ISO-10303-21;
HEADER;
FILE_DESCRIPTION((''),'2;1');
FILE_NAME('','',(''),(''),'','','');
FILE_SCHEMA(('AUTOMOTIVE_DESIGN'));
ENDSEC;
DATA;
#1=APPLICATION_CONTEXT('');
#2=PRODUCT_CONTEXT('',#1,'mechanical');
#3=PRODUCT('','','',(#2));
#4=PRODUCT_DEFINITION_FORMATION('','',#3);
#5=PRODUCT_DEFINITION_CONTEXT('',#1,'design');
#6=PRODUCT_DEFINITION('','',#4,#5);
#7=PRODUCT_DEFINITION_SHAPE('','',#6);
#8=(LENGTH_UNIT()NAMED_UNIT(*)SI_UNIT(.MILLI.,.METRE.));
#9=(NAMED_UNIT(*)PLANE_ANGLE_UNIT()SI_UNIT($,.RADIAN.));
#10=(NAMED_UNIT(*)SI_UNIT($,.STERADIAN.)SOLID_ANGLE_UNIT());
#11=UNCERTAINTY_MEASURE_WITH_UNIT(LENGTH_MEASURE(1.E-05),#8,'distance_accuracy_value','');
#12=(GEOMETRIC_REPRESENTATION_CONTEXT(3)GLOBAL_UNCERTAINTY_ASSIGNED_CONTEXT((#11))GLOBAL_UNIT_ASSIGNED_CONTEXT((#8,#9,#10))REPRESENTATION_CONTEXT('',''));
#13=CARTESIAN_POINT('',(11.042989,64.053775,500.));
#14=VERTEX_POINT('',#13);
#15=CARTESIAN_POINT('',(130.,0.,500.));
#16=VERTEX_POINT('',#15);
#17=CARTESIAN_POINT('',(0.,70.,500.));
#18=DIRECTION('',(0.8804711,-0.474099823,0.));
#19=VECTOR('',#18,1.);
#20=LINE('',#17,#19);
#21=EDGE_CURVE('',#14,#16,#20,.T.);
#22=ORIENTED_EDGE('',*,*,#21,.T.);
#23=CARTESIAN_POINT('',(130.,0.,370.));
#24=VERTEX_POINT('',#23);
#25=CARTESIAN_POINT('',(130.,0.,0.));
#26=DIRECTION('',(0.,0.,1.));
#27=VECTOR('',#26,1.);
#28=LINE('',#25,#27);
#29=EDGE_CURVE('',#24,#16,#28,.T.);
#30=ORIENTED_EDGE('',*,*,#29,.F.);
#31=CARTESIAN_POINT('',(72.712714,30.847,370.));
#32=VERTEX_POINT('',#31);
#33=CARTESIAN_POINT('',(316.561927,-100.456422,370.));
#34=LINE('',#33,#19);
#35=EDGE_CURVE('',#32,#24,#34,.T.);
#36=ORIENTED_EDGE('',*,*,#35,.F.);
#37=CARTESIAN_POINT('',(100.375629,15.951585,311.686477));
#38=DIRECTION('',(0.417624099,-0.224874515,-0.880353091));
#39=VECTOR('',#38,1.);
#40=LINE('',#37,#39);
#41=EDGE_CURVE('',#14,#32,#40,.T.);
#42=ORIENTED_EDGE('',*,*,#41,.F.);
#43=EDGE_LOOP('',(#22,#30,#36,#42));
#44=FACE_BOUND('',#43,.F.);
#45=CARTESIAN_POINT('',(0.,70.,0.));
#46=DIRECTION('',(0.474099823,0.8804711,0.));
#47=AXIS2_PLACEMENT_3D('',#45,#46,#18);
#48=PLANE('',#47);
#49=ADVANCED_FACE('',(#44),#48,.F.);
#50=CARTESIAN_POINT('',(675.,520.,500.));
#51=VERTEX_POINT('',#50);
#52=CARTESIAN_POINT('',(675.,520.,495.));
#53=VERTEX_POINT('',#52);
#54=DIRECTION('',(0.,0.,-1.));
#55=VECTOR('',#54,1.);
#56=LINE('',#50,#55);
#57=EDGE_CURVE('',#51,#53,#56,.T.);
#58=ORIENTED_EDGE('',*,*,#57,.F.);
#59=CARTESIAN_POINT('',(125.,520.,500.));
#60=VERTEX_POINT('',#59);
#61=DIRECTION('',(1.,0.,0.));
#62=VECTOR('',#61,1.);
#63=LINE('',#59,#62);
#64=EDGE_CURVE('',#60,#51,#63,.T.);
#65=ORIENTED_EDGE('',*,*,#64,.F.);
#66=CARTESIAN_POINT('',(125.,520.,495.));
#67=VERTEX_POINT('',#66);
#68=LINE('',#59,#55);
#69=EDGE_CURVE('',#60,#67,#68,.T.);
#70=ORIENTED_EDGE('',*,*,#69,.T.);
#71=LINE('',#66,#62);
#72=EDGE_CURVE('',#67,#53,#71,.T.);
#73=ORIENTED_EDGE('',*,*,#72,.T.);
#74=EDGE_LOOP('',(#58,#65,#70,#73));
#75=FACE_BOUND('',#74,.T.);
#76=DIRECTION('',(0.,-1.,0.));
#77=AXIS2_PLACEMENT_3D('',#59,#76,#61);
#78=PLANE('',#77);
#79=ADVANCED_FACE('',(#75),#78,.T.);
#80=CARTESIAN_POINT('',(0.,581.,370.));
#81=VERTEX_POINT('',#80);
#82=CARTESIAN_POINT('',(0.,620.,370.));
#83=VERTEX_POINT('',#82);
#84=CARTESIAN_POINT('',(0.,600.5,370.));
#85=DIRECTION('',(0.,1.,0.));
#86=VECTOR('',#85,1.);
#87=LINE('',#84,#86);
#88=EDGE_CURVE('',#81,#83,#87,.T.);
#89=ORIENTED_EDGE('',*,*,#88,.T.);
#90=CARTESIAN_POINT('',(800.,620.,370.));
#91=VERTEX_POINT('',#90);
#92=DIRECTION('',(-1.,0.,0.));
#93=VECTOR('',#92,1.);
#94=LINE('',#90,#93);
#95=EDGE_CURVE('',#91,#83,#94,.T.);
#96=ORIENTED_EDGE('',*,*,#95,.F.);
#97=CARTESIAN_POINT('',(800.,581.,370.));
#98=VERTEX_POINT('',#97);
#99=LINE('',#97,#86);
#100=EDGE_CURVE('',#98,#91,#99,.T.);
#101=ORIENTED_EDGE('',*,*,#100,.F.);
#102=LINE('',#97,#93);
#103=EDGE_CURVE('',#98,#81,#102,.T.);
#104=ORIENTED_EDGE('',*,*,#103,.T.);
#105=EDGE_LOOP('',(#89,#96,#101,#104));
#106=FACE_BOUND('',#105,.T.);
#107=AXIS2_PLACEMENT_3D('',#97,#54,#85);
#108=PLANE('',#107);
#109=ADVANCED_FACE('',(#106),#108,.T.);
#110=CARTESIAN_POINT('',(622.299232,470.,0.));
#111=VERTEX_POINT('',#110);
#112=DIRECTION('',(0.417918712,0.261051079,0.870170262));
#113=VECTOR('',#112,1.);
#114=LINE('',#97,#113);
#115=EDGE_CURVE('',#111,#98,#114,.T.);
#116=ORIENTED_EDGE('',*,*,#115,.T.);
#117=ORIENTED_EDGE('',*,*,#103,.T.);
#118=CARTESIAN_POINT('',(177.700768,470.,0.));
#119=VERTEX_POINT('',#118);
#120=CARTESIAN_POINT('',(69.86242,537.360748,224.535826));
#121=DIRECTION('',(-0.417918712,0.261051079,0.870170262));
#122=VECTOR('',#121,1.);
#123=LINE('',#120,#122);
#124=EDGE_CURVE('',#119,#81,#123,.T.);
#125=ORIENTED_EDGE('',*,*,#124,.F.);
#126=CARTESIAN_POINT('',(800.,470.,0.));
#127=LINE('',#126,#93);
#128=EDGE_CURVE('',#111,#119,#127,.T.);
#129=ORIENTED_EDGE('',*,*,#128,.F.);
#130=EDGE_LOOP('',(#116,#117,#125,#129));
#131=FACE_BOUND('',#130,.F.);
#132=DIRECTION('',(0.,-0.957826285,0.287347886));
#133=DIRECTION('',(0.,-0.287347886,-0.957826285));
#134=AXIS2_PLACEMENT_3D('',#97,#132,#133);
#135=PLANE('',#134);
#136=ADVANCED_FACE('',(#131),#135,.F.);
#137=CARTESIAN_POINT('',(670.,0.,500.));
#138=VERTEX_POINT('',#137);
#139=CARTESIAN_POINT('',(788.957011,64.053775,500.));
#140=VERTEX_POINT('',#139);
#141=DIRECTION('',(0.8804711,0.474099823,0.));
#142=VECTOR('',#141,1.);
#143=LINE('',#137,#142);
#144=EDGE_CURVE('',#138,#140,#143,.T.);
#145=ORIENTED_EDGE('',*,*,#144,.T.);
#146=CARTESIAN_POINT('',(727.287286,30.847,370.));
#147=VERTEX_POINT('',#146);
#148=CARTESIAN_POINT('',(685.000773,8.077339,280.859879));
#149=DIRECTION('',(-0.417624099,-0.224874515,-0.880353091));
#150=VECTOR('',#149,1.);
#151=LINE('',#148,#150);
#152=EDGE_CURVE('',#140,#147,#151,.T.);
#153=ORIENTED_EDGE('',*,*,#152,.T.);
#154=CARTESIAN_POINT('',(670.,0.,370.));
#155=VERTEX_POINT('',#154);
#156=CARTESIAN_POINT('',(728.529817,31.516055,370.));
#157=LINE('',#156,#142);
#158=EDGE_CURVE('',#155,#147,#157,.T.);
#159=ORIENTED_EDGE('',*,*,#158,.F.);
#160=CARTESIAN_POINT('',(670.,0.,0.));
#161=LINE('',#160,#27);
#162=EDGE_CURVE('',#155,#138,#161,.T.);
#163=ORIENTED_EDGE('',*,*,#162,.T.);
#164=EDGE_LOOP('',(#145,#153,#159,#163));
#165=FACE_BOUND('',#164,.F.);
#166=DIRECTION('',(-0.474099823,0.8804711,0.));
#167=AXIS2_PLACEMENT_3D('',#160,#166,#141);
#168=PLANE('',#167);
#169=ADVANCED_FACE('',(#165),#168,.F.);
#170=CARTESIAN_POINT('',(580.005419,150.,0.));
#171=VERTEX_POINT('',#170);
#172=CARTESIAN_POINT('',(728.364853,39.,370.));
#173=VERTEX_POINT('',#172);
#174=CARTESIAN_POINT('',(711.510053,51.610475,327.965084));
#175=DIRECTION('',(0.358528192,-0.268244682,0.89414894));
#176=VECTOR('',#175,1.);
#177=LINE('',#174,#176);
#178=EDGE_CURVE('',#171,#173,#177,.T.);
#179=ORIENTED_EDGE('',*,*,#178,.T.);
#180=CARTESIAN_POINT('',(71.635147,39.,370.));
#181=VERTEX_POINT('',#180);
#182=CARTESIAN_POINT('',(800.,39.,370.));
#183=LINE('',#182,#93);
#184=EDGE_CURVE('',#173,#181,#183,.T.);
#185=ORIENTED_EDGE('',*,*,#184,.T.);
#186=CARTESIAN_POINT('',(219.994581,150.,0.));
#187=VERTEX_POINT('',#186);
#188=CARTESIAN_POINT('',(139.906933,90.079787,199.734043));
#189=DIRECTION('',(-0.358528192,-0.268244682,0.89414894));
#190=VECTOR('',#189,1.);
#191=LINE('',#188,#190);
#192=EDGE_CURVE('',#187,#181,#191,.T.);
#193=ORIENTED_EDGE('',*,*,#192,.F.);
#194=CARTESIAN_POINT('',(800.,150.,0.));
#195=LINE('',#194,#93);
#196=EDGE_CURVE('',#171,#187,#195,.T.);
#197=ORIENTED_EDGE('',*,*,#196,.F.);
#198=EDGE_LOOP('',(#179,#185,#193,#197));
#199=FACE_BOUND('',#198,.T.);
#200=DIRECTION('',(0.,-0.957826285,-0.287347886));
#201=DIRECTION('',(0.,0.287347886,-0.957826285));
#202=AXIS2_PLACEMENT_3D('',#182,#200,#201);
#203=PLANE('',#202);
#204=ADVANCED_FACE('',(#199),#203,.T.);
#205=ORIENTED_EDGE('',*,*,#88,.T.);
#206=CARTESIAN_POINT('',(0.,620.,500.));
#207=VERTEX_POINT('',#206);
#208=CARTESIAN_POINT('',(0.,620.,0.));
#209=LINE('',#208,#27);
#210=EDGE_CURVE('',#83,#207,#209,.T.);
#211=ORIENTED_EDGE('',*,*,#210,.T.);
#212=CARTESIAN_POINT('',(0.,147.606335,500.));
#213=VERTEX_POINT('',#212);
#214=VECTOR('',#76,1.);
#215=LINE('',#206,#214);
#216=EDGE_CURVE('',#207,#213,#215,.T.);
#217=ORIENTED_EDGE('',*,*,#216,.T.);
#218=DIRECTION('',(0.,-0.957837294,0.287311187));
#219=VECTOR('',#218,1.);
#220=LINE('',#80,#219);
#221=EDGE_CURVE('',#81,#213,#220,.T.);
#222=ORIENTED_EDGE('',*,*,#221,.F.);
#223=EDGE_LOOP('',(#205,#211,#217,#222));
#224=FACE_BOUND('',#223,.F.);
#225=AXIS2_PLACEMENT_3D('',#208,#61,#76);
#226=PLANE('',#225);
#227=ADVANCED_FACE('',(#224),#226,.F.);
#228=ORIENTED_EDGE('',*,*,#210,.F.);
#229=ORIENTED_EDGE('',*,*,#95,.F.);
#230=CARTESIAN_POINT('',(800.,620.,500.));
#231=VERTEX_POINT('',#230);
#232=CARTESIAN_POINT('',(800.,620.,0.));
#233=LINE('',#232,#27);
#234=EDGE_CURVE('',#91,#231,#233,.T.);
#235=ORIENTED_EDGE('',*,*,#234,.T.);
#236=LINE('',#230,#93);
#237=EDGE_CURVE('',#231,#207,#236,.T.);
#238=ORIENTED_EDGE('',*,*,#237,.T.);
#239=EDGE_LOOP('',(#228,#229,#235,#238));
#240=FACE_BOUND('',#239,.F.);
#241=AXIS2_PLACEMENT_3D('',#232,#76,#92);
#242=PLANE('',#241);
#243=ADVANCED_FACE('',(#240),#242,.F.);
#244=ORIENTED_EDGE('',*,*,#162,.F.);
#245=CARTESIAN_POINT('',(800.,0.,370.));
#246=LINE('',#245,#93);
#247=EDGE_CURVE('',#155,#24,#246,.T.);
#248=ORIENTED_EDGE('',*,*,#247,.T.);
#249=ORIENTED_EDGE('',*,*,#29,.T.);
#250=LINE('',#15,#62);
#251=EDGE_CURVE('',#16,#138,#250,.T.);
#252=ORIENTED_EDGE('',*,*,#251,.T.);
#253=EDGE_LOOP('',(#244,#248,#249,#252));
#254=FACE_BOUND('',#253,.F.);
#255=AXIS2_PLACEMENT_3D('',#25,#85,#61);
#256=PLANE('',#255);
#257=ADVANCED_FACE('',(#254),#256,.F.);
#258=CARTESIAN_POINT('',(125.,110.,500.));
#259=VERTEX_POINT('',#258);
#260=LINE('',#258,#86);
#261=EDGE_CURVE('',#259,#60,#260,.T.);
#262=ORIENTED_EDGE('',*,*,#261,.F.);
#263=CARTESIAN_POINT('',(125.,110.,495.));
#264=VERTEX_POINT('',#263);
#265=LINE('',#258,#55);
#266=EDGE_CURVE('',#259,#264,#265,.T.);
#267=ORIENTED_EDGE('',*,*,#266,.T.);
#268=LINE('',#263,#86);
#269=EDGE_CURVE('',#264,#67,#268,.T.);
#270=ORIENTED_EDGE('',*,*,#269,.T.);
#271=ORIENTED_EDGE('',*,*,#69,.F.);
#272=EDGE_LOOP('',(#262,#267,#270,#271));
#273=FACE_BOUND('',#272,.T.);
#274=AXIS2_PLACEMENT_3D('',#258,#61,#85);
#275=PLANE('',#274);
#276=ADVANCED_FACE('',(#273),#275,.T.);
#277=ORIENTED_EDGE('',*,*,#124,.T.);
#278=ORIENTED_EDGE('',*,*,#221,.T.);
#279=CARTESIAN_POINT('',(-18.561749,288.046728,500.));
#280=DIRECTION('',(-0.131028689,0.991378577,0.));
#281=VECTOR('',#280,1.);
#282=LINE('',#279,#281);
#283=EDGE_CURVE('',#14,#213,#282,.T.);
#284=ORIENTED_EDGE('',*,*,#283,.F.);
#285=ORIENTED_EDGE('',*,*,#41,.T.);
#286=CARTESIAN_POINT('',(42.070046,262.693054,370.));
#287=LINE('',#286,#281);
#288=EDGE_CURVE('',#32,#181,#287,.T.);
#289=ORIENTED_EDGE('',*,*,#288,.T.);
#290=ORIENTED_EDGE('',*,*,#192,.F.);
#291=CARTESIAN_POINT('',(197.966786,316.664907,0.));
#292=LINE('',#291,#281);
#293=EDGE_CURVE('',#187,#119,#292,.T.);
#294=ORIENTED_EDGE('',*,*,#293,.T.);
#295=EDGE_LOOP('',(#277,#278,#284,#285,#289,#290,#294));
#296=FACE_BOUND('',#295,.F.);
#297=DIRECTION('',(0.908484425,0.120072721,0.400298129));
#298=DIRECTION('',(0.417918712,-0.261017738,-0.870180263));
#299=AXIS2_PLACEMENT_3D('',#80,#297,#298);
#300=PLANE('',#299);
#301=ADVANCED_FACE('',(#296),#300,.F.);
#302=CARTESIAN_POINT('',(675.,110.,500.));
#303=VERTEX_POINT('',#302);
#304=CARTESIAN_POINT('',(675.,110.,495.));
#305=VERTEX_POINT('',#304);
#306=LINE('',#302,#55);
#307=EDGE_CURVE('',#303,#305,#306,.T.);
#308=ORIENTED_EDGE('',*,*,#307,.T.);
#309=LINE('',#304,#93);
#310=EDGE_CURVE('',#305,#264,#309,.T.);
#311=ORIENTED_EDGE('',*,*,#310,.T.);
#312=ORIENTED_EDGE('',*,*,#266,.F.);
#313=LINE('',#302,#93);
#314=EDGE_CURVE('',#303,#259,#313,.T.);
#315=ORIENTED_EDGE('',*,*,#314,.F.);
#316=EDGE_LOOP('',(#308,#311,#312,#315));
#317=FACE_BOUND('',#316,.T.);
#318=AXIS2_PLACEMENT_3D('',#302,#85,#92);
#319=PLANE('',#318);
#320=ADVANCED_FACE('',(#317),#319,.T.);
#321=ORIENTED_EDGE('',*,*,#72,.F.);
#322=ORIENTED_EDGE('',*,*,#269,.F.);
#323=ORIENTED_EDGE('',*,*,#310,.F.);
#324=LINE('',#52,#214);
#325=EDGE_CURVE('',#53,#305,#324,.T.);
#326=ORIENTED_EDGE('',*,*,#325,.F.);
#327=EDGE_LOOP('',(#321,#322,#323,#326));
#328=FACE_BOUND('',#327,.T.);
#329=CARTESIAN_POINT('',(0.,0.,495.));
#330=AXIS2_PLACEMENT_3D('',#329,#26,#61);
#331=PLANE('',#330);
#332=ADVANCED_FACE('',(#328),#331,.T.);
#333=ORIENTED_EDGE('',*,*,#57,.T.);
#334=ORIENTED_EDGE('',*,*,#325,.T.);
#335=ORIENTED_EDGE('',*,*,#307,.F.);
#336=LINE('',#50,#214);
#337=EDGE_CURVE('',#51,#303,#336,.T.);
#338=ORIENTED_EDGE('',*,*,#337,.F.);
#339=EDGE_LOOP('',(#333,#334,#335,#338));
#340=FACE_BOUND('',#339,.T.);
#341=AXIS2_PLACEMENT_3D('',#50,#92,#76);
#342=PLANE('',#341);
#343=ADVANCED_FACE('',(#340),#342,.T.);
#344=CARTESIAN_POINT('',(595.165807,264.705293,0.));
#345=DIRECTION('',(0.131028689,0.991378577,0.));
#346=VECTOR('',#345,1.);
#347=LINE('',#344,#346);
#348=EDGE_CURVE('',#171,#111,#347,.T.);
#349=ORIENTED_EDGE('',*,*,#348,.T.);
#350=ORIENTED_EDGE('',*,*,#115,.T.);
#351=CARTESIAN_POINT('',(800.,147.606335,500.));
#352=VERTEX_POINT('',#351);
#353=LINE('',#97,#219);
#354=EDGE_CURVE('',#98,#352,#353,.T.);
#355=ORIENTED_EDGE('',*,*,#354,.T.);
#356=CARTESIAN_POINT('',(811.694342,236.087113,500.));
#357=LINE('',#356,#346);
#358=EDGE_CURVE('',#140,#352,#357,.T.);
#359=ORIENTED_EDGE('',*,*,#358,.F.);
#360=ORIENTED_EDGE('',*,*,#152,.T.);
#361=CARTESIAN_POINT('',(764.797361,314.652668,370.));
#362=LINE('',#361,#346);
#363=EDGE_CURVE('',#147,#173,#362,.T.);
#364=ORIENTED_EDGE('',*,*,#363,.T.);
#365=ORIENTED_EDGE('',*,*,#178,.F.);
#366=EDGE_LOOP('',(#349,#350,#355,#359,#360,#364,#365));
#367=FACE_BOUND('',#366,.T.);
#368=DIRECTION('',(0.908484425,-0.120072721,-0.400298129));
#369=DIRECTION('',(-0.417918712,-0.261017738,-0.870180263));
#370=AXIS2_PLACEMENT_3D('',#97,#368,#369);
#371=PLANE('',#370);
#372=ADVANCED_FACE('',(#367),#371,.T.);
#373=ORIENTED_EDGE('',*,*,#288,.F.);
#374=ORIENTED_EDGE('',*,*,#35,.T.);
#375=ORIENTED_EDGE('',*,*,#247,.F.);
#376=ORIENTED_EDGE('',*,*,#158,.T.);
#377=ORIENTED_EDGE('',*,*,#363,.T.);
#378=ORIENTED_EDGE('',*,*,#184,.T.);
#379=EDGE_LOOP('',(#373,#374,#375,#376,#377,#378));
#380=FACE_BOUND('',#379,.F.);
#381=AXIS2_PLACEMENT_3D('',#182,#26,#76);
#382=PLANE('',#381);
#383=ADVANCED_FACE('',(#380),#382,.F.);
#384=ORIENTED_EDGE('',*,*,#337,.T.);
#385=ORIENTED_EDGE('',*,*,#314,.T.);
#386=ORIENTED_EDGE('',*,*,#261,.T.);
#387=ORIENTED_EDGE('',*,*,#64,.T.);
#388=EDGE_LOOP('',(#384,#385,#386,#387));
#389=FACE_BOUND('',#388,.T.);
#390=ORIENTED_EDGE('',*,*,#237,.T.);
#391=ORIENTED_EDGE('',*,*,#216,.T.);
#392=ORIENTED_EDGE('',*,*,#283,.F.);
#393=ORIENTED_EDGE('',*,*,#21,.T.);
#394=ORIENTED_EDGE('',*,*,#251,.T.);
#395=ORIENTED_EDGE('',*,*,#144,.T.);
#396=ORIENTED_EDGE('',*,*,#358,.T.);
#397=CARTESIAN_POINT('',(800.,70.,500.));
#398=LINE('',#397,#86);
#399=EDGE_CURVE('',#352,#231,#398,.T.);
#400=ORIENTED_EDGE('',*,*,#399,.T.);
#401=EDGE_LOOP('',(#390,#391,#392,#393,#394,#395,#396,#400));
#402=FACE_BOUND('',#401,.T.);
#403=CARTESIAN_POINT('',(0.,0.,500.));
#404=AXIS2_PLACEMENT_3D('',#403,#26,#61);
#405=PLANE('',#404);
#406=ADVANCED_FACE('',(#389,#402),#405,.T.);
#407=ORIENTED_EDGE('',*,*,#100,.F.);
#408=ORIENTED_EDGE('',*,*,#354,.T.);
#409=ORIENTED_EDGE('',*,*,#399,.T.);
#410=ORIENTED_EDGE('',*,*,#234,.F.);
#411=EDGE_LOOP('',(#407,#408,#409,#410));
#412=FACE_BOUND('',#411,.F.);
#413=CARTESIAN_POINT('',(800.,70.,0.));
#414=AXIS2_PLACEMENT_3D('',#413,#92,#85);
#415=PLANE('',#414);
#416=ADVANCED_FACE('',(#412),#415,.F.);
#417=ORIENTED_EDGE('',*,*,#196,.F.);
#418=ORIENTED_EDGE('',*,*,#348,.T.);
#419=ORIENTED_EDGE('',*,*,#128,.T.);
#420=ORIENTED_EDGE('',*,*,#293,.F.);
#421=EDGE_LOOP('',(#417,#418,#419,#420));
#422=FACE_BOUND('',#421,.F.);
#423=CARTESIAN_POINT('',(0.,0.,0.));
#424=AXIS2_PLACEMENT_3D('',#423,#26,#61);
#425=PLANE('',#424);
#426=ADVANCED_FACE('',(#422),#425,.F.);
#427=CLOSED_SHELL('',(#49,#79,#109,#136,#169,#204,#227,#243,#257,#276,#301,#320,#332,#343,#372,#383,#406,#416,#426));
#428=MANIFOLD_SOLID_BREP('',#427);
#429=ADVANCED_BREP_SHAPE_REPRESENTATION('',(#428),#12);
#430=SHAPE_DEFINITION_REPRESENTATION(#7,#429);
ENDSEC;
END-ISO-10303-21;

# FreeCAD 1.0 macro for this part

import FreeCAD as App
import Part
import Sketcher


def add_polygon(sketch, points):
    """Adds a closed chain of lines whose ends are joined by coincident constraints."""
    first, n = sketch.GeometryCount, len(points)
    for a, b in zip(points, points[1:] + points[:1]):
        sketch.addGeometry(Part.LineSegment(App.Vector(*a, 0), App.Vector(*b, 0)), False)
    for i in range(n):
        sketch.addConstraint(Sketcher.Constraint("Coincident", first + i, 2, first + (i + 1) % n, 1))

doc = App.newDocument("Part")
body = doc.addObject("PartDesign::Body", "Body")

sketch1 = body.newObject("Sketcher::SketchObject", "Sketch")
sketch1.AttachmentSupport = (doc.getObject("XY_Plane"), [""])
sketch1.MapMode = "FlatFace"
add_polygon(sketch1, [(0, 70), (130, 0), (670, 0), (800, 70), (800, 620), (0, 620)])
sketch1.addConstraint([
    Sketcher.Constraint("Horizontal", 1),
    Sketcher.Constraint("Vertical", 3),
    Sketcher.Constraint("Horizontal", 4),
    Sketcher.Constraint("Vertical", 5),
    Sketcher.Constraint("PointOnObject", 0, 2, -1),
    Sketcher.Constraint("PointOnObject", 4, 2, -2),
    Sketcher.Constraint("Horizontal", 2, 2, 5, 2),
    Sketcher.Constraint("Equal", 0, 2),
    Sketcher.Constraint("DistanceX", 4, 2, 4, 1, 800.0),
    Sketcher.Constraint("DistanceY", 3, 1, 3, 2, 550.0),
    Sketcher.Constraint("DistanceX", -1, 1, 0, 2, 130.0),
    Sketcher.Constraint("DistanceY", -1, 1, 2, 2, 70.0),
])
pad1 = body.newObject("PartDesign::Pad", "Pad")
pad1.Profile = sketch1
pad1.Length = 500

sketch2 = body.newObject("Sketcher::SketchObject", "Sketch001")
sketch2.AttachmentSupport = (doc.getObject("YZ_Plane"), [""])
sketch2.MapMode = "FlatFace"
sketch2.AttachmentOffset = App.Placement(App.Vector(0, 0, 800), App.Rotation())
add_polygon(sketch2, [(620, 0), (620, 370), (581, 370), (470, 0)])
add_polygon(sketch2, [(150, 0), (39, 370), (0, 370), (0, 0)])
sketch2.addConstraint([
    Sketcher.Constraint("Vertical", 0),
    Sketcher.Constraint("Horizontal", 1),
    Sketcher.Constraint("Horizontal", 3),
    Sketcher.Constraint("Horizontal", 5),
    Sketcher.Constraint("Vertical", 6),
    Sketcher.Constraint("Horizontal", 7),
    Sketcher.Constraint("Coincident", 6, 2, -1, 1),
    Sketcher.Constraint("PointOnObject", 2, 2, -1),
    Sketcher.Constraint("Horizontal", 1, 2, 4, 2),
    Sketcher.Constraint("Equal", 1, 5),
    Sketcher.Constraint("Equal", 3, 7),
    Sketcher.Constraint("DistanceX", 3, 1, 3, 2, 150.0),
    Sketcher.Constraint("DistanceX", 7, 2, 2, 2, 320.0),
    Sketcher.Constraint("DistanceX", 1, 2, 1, 1, 39.0),
    Sketcher.Constraint("DistanceY", 0, 1, 0, 2, 370.0),
])
pocket1 = body.newObject("PartDesign::Pocket", "Pocket")
pocket1.Profile = sketch2
pocket1.Type = "ThroughAll"

sketch3 = body.newObject("Sketcher::SketchObject", "Sketch002")
sketch3.AttachmentSupport = (doc.getObject("XY_Plane"), [""])
sketch3.MapMode = "FlatFace"
sketch3.AttachmentOffset = App.Placement(App.Vector(0, 0, 500), App.Rotation())
add_polygon(sketch3, [(675, 520), (125, 520), (125, 110), (675, 110)])
sketch3.addConstraint([
    Sketcher.Constraint("Horizontal", 0),
    Sketcher.Constraint("Vertical", 1),
    Sketcher.Constraint("Horizontal", 2),
    Sketcher.Constraint("Vertical", 3),
    Sketcher.Constraint("DistanceX", 0, 2, 0, 1, 550.0),
    Sketcher.Constraint("DistanceY", 1, 2, 1, 1, 410.0),
    Sketcher.Constraint("DistanceX", -1, 1, 0, 2, 125.0),
    Sketcher.Constraint("DistanceY", -1, 1, 0, 2, 520.0),
])
pocket2 = body.newObject("PartDesign::Pocket", "Pocket001")
pocket2.Profile = sketch3
pocket2.Length = 5

sketch4 = body.newObject("Sketcher::SketchObject", "Sketch003")
sketch4.Placement = App.Placement(App.Vector(0, 581, 370), App.Rotation(App.Vector(1, 0, 0), App.Vector(0, -0.287311187, -0.957837294), App.Vector(0, 0.957837294, -0.287311187), "ZXY"))
add_polygon(sketch4, [(580, 478.2427), (800, 0), (800, 478.2427)])
add_polygon(sketch4, [(0, 478.2427), (0, 0), (220, 478.2427)])
sketch4.addConstraint([
    Sketcher.Constraint("Vertical", 1),
    Sketcher.Constraint("Horizontal", 2),
    Sketcher.Constraint("Vertical", 3),
    Sketcher.Constraint("Horizontal", 5),
    Sketcher.Constraint("Coincident", 3, 2, -1, 1),
    Sketcher.Constraint("PointOnObject", 0, 2, -1),
    Sketcher.Constraint("Horizontal", 2, 2, 4, 2),
    Sketcher.Constraint("Equal", 2, 5),
    Sketcher.Constraint("DistanceX", 2, 2, 2, 1, 220.0),
    Sketcher.Constraint("DistanceX", 4, 2, 2, 2, 360.0),
    Sketcher.Constraint("DistanceY", 1, 1, 1, 2, 478.2427),
])
pocket3 = body.newObject("PartDesign::Pocket", "Pocket002")
pocket3.Profile = sketch4
pocket3.Type = "ThroughAll"

doc.recompute()
